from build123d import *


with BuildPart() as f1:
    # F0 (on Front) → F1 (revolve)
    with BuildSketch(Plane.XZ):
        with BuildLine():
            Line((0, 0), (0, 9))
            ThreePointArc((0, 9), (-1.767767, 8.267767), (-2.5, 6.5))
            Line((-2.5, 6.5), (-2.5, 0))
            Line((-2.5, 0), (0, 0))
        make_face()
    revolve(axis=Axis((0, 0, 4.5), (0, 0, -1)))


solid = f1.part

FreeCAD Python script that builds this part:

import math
import FreeCAD as App
import Part
import Sketcher

V = App.Vector
Q = App.Units.Quantity

doc = App.newDocument("Part")
params = doc.addObject("Spreadsheet::Sheet", "Params")
for row, (alias, value) in enumerate([
    ("sketch1_radius", "2.5 mm"),
    ("sketch1_height", "9 mm"),
    ("revolution_angle", "360 deg"),
], start=1):
    params.set(f"A{row}", alias)
    params.set(f"B{row}", "=" + value)
    params.setAlias(f"B{row}", alias)

body = doc.addObject("PartDesign::Body", "Body")

sketch1 = body.newObject("Sketcher::SketchObject", "Sketch")
sketch1.AttachmentSupport = (doc.getObject("XZ_Plane"), [""])
sketch1.MapMode = "FlatFace"
sketch1.addGeometry(Part.LineSegment(V(0, 0, 0), V(0, 9, 0)), False)
sketch1.addGeometry(Part.ArcOfCircle(Part.Circle(V(0, 6.5, 0), V(0, 0, 1), 2.5), math.radians(89.999996), math.radians(180.000004)), False)
sketch1.addGeometry(Part.LineSegment(V(-2.5, 6.5, 0), V(-2.5, 0, 0)), False)
sketch1.addGeometry(Part.LineSegment(V(-2.5, 0, 0), V(0, 0, 0)), False)
sketch1.addConstraint(Sketcher.Constraint("Coincident", 0, 2, 1, 1))
sketch1.addConstraint(Sketcher.Constraint("Tangent", 1, 2, 2, 1))
sketch1.addConstraint(Sketcher.Constraint("Coincident", 2, 2, 3, 1))
sketch1.addConstraint(Sketcher.Constraint("Coincident", 3, 2, 0, 1))
sketch1.addConstraint(Sketcher.Constraint("Vertical", 0))
sketch1.addConstraint(Sketcher.Constraint("Vertical", 2))
sketch1.addConstraint(Sketcher.Constraint("Horizontal", 3))
sketch1.addConstraint(Sketcher.Constraint("Coincident", 3, 2, -1, 1))
sketch1.addConstraint(Sketcher.Constraint("PointOnObject", 1, 3, -2))
sketch1.addConstraint(Sketcher.Constraint("Radius", 1, Q("2.5 mm")))
sketch1.addConstraint(Sketcher.Constraint("DistanceY", 0, 1, 0, 2, Q("9 mm")))
sketch1.setExpression("Constraints[9]", "Params.sketch1_radius")
sketch1.setExpression("Constraints[10]", "Params.sketch1_height")
revolution = body.newObject("PartDesign::Revolution", "Revolution")
revolution.Profile = sketch1
revolution.ReferenceAxis = (sketch1, ["V_Axis"])
revolution.setExpression("Angle", "Params.revolution_angle")

doc.recompute()
